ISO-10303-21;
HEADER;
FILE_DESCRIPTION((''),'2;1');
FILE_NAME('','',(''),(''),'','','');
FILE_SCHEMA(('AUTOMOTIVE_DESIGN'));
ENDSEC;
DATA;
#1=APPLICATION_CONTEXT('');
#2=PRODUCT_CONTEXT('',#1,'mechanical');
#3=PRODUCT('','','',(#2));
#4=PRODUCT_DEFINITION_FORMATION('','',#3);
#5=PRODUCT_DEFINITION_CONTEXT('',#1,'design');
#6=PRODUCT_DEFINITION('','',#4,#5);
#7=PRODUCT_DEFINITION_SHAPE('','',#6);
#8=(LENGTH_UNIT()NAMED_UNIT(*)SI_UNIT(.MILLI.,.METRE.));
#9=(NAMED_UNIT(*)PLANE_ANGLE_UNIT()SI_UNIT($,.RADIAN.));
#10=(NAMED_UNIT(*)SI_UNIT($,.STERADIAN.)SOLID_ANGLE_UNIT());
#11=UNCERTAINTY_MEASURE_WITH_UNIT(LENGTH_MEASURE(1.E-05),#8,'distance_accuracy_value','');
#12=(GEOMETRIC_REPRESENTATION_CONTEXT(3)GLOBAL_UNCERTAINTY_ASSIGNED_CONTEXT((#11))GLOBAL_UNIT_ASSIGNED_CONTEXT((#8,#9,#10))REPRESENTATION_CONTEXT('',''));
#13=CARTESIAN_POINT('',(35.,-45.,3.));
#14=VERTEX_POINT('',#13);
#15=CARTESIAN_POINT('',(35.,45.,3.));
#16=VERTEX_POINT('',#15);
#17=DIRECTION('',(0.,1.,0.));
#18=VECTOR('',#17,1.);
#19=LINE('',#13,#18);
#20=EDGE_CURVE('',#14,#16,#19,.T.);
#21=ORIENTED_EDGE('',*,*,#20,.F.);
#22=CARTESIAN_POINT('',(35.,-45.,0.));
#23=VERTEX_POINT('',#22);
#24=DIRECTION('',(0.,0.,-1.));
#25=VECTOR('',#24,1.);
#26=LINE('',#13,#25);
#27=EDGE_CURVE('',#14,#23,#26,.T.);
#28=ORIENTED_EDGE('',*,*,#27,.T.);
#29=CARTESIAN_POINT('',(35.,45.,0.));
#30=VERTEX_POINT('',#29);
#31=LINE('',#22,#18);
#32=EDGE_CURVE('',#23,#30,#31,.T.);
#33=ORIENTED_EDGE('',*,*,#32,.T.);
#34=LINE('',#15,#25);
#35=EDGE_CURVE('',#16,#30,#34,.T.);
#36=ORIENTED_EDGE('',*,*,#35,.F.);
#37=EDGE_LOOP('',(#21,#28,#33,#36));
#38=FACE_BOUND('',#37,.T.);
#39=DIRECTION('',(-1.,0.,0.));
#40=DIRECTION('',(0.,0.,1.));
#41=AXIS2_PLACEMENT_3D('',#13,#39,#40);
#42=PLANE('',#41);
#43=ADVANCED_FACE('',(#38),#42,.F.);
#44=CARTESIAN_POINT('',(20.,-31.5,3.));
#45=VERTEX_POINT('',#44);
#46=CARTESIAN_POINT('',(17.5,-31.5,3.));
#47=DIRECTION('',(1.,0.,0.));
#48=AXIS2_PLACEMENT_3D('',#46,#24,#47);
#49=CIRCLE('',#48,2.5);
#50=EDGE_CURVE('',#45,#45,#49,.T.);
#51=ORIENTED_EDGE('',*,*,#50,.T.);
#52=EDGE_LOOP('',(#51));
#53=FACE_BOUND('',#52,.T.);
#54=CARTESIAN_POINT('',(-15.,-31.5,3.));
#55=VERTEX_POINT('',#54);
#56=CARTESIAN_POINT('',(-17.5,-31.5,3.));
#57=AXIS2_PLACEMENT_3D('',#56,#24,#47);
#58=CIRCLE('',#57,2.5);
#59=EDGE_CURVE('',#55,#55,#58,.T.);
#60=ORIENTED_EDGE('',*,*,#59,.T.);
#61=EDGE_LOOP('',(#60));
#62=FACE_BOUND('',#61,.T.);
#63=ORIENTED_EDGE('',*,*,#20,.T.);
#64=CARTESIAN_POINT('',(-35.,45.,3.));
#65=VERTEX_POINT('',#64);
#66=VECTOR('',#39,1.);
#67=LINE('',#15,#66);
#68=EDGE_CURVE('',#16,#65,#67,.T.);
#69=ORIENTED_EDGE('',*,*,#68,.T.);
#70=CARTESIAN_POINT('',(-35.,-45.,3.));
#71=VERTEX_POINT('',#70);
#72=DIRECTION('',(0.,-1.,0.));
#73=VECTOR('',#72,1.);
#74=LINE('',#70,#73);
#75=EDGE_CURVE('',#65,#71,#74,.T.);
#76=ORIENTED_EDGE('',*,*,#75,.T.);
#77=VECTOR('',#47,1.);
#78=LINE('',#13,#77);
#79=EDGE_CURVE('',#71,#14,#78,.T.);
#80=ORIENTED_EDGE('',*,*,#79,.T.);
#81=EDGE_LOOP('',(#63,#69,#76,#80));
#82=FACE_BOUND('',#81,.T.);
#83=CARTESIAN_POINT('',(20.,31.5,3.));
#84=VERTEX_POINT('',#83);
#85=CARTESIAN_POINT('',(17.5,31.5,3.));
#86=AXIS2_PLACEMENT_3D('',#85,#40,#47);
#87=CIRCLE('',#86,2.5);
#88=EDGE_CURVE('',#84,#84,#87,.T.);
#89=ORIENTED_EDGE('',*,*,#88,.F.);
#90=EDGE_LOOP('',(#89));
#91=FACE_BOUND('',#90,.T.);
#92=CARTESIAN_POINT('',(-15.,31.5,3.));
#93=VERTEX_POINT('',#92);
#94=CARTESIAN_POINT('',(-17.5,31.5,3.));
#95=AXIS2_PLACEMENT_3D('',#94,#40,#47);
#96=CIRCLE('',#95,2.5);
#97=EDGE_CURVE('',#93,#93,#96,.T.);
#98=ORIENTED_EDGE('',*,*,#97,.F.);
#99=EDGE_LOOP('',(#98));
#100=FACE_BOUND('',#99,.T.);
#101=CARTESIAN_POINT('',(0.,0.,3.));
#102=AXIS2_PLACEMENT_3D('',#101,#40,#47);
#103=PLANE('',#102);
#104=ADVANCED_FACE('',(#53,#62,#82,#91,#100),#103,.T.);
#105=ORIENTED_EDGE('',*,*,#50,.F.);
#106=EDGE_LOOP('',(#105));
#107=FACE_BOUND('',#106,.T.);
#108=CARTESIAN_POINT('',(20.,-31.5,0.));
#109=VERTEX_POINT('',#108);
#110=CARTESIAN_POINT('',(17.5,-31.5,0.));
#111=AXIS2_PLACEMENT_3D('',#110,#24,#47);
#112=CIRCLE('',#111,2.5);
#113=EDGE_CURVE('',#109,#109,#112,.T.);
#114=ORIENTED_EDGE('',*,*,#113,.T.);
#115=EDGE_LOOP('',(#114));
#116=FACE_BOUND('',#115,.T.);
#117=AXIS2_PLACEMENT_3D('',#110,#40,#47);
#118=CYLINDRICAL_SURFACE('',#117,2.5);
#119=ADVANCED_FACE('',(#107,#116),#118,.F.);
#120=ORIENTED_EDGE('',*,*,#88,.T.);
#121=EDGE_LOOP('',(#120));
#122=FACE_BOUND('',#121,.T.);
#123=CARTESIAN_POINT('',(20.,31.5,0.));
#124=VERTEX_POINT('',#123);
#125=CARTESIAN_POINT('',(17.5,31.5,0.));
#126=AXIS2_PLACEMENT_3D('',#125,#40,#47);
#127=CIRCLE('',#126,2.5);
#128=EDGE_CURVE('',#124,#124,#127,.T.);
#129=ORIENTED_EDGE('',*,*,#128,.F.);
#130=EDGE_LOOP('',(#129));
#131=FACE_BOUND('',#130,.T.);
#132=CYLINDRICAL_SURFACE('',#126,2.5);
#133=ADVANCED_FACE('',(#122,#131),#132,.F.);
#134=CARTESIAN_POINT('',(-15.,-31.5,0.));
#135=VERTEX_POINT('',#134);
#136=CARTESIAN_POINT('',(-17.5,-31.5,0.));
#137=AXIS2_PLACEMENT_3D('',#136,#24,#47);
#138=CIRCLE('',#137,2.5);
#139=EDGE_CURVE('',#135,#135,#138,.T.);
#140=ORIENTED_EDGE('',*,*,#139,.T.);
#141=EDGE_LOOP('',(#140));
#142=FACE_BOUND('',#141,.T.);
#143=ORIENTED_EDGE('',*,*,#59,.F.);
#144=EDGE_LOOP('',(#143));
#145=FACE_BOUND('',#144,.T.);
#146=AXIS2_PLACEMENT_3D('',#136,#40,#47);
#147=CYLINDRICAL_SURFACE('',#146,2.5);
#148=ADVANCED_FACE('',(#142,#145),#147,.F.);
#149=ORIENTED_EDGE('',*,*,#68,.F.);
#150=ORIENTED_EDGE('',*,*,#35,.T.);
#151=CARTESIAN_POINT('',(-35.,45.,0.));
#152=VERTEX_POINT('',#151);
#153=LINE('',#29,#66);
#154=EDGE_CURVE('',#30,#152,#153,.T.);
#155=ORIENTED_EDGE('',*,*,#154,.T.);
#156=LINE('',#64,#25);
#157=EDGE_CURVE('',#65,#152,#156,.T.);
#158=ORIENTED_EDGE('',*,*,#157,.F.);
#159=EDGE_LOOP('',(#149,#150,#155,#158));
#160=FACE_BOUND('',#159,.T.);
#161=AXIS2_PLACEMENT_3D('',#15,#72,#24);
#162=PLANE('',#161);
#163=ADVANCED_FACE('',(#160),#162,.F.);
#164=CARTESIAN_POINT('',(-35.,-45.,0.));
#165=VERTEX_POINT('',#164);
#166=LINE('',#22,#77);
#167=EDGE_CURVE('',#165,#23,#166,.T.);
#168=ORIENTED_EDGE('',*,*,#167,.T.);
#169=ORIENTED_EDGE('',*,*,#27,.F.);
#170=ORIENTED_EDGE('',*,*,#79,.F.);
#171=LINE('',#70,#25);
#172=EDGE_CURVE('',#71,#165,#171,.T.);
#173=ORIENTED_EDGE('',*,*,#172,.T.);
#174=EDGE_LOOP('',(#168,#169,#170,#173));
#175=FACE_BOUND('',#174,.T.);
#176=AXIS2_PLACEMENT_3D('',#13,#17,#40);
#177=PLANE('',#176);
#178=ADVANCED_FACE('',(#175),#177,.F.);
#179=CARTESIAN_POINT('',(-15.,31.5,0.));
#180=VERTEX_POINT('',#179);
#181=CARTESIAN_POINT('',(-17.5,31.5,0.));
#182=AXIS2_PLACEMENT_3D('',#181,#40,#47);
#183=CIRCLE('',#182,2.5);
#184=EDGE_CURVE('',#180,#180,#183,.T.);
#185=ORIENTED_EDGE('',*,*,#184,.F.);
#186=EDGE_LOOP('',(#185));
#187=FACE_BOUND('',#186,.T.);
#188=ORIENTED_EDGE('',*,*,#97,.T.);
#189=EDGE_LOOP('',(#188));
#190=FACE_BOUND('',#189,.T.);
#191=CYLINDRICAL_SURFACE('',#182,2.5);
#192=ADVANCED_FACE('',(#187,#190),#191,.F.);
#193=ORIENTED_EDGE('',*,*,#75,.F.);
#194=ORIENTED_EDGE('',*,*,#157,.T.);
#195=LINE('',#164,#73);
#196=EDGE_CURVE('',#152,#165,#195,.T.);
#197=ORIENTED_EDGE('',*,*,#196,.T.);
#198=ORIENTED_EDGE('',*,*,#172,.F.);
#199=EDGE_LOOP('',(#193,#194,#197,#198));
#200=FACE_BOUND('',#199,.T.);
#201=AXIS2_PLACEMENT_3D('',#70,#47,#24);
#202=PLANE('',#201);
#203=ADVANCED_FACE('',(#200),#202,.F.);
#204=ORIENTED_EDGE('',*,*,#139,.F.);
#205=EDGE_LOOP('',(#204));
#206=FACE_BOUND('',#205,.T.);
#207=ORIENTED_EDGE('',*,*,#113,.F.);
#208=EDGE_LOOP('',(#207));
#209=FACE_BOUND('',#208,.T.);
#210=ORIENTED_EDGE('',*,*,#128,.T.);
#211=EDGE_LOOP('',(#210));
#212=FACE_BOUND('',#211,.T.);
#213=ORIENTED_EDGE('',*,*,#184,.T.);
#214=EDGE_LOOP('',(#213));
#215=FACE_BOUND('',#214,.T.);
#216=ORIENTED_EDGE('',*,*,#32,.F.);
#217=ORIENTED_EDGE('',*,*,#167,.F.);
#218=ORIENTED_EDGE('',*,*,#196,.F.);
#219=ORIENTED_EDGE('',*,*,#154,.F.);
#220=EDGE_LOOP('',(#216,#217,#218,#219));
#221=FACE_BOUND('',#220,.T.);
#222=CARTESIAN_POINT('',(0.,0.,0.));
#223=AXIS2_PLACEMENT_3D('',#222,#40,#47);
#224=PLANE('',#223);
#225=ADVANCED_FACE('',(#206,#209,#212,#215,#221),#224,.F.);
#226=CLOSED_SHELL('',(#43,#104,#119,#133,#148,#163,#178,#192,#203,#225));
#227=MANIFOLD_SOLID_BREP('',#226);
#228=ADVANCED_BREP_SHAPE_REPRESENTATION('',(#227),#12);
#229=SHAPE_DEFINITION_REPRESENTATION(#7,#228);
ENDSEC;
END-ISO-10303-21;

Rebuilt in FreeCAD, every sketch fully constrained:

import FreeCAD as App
import Part
import Sketcher

V = App.Vector
Q = App.Units.Quantity


def add_polygon(sketch, points):
    """Adds a closed chain of lines whose ends are joined by coincident constraints."""
    first, n = sketch.GeometryCount, len(points)
    for a, b in zip(points, points[1:] + points[:1]):
        sketch.addGeometry(Part.LineSegment(App.Vector(*a, 0), App.Vector(*b, 0)), False)
    for i in range(n):
        sketch.addConstraint(Sketcher.Constraint("Coincident", first + i, 2, first + (i + 1) % n, 1))

doc = App.newDocument("Part")
body = doc.addObject("PartDesign::Body", "Body")

# Sketch on XY plane
sketch1 = body.newObject("Sketcher::SketchObject", "Sketch")
sketch1.AttachmentSupport = (doc.getObject("XY_Plane"), [""])
sketch1.MapMode = "FlatFace"
add_polygon(sketch1, [(-35, 45), (-35, -45), (35, -45), (35, 45)])  # lines 0-3
sketch1.addConstraint([
    Sketcher.Constraint("Vertical", 0),
    Sketcher.Constraint("Horizontal", 1),
    Sketcher.Constraint("Vertical", 2),
    Sketcher.Constraint("Horizontal", 3),
    Sketcher.Constraint("Symmetric", 0, 2, 2, 2, -1, 1),
    Sketcher.Constraint("DistanceX", 1, 1, 1, 2, Q("70 mm")),
    Sketcher.Constraint("DistanceY", 0, 2, 0, 1, Q("90 mm")),
])
pad1 = body.newObject("PartDesign::Pad", "Pad")
pad1.Profile = sketch1
pad1.Length = 3

# Sketch on XY plane
sketch2 = body.newObject("Sketcher::SketchObject", "Sketch001")
sketch2.AttachmentSupport = (doc.getObject("XY_Plane"), [""])
sketch2.MapMode = "FlatFace"
sketch2.AttachmentOffset = App.Placement(V(0, 0, 3), App.Rotation())
sketch2.addGeometry([
    Part.Circle(V(-17.5, 31.5, 0), V(0, 0, 1), 2.5),
    Part.Circle(V(17.5, 31.5, 0), V(0, 0, 1), 2.5),
], False)
sketch2.addConstraint([
    Sketcher.Constraint("Equal", 0, 1),
    Sketcher.Constraint("Symmetric", 0, 3, 1, 3, -2),
    Sketcher.Constraint("Diameter", 0, Q("5 mm")),
    Sketcher.Constraint("DistanceX", 0, 3, 1, 3, Q("35 mm")),
    Sketcher.Constraint("DistanceY", -1, 1, 0, 3, Q("31.5 mm")),
])
pocket1 = body.newObject("PartDesign::Pocket", "Pocket")
pocket1.Profile = sketch2
pocket1.Type = "ThroughAll"
doc.recompute()

mirrored = body.newObject("PartDesign::Mirrored", "Mirrored")
mirrored.Originals = [pocket1]
mirrored.MirrorPlane = (doc.getObject("XZ_Plane"), [""])
body.Tip = mirrored

doc.recompute()
